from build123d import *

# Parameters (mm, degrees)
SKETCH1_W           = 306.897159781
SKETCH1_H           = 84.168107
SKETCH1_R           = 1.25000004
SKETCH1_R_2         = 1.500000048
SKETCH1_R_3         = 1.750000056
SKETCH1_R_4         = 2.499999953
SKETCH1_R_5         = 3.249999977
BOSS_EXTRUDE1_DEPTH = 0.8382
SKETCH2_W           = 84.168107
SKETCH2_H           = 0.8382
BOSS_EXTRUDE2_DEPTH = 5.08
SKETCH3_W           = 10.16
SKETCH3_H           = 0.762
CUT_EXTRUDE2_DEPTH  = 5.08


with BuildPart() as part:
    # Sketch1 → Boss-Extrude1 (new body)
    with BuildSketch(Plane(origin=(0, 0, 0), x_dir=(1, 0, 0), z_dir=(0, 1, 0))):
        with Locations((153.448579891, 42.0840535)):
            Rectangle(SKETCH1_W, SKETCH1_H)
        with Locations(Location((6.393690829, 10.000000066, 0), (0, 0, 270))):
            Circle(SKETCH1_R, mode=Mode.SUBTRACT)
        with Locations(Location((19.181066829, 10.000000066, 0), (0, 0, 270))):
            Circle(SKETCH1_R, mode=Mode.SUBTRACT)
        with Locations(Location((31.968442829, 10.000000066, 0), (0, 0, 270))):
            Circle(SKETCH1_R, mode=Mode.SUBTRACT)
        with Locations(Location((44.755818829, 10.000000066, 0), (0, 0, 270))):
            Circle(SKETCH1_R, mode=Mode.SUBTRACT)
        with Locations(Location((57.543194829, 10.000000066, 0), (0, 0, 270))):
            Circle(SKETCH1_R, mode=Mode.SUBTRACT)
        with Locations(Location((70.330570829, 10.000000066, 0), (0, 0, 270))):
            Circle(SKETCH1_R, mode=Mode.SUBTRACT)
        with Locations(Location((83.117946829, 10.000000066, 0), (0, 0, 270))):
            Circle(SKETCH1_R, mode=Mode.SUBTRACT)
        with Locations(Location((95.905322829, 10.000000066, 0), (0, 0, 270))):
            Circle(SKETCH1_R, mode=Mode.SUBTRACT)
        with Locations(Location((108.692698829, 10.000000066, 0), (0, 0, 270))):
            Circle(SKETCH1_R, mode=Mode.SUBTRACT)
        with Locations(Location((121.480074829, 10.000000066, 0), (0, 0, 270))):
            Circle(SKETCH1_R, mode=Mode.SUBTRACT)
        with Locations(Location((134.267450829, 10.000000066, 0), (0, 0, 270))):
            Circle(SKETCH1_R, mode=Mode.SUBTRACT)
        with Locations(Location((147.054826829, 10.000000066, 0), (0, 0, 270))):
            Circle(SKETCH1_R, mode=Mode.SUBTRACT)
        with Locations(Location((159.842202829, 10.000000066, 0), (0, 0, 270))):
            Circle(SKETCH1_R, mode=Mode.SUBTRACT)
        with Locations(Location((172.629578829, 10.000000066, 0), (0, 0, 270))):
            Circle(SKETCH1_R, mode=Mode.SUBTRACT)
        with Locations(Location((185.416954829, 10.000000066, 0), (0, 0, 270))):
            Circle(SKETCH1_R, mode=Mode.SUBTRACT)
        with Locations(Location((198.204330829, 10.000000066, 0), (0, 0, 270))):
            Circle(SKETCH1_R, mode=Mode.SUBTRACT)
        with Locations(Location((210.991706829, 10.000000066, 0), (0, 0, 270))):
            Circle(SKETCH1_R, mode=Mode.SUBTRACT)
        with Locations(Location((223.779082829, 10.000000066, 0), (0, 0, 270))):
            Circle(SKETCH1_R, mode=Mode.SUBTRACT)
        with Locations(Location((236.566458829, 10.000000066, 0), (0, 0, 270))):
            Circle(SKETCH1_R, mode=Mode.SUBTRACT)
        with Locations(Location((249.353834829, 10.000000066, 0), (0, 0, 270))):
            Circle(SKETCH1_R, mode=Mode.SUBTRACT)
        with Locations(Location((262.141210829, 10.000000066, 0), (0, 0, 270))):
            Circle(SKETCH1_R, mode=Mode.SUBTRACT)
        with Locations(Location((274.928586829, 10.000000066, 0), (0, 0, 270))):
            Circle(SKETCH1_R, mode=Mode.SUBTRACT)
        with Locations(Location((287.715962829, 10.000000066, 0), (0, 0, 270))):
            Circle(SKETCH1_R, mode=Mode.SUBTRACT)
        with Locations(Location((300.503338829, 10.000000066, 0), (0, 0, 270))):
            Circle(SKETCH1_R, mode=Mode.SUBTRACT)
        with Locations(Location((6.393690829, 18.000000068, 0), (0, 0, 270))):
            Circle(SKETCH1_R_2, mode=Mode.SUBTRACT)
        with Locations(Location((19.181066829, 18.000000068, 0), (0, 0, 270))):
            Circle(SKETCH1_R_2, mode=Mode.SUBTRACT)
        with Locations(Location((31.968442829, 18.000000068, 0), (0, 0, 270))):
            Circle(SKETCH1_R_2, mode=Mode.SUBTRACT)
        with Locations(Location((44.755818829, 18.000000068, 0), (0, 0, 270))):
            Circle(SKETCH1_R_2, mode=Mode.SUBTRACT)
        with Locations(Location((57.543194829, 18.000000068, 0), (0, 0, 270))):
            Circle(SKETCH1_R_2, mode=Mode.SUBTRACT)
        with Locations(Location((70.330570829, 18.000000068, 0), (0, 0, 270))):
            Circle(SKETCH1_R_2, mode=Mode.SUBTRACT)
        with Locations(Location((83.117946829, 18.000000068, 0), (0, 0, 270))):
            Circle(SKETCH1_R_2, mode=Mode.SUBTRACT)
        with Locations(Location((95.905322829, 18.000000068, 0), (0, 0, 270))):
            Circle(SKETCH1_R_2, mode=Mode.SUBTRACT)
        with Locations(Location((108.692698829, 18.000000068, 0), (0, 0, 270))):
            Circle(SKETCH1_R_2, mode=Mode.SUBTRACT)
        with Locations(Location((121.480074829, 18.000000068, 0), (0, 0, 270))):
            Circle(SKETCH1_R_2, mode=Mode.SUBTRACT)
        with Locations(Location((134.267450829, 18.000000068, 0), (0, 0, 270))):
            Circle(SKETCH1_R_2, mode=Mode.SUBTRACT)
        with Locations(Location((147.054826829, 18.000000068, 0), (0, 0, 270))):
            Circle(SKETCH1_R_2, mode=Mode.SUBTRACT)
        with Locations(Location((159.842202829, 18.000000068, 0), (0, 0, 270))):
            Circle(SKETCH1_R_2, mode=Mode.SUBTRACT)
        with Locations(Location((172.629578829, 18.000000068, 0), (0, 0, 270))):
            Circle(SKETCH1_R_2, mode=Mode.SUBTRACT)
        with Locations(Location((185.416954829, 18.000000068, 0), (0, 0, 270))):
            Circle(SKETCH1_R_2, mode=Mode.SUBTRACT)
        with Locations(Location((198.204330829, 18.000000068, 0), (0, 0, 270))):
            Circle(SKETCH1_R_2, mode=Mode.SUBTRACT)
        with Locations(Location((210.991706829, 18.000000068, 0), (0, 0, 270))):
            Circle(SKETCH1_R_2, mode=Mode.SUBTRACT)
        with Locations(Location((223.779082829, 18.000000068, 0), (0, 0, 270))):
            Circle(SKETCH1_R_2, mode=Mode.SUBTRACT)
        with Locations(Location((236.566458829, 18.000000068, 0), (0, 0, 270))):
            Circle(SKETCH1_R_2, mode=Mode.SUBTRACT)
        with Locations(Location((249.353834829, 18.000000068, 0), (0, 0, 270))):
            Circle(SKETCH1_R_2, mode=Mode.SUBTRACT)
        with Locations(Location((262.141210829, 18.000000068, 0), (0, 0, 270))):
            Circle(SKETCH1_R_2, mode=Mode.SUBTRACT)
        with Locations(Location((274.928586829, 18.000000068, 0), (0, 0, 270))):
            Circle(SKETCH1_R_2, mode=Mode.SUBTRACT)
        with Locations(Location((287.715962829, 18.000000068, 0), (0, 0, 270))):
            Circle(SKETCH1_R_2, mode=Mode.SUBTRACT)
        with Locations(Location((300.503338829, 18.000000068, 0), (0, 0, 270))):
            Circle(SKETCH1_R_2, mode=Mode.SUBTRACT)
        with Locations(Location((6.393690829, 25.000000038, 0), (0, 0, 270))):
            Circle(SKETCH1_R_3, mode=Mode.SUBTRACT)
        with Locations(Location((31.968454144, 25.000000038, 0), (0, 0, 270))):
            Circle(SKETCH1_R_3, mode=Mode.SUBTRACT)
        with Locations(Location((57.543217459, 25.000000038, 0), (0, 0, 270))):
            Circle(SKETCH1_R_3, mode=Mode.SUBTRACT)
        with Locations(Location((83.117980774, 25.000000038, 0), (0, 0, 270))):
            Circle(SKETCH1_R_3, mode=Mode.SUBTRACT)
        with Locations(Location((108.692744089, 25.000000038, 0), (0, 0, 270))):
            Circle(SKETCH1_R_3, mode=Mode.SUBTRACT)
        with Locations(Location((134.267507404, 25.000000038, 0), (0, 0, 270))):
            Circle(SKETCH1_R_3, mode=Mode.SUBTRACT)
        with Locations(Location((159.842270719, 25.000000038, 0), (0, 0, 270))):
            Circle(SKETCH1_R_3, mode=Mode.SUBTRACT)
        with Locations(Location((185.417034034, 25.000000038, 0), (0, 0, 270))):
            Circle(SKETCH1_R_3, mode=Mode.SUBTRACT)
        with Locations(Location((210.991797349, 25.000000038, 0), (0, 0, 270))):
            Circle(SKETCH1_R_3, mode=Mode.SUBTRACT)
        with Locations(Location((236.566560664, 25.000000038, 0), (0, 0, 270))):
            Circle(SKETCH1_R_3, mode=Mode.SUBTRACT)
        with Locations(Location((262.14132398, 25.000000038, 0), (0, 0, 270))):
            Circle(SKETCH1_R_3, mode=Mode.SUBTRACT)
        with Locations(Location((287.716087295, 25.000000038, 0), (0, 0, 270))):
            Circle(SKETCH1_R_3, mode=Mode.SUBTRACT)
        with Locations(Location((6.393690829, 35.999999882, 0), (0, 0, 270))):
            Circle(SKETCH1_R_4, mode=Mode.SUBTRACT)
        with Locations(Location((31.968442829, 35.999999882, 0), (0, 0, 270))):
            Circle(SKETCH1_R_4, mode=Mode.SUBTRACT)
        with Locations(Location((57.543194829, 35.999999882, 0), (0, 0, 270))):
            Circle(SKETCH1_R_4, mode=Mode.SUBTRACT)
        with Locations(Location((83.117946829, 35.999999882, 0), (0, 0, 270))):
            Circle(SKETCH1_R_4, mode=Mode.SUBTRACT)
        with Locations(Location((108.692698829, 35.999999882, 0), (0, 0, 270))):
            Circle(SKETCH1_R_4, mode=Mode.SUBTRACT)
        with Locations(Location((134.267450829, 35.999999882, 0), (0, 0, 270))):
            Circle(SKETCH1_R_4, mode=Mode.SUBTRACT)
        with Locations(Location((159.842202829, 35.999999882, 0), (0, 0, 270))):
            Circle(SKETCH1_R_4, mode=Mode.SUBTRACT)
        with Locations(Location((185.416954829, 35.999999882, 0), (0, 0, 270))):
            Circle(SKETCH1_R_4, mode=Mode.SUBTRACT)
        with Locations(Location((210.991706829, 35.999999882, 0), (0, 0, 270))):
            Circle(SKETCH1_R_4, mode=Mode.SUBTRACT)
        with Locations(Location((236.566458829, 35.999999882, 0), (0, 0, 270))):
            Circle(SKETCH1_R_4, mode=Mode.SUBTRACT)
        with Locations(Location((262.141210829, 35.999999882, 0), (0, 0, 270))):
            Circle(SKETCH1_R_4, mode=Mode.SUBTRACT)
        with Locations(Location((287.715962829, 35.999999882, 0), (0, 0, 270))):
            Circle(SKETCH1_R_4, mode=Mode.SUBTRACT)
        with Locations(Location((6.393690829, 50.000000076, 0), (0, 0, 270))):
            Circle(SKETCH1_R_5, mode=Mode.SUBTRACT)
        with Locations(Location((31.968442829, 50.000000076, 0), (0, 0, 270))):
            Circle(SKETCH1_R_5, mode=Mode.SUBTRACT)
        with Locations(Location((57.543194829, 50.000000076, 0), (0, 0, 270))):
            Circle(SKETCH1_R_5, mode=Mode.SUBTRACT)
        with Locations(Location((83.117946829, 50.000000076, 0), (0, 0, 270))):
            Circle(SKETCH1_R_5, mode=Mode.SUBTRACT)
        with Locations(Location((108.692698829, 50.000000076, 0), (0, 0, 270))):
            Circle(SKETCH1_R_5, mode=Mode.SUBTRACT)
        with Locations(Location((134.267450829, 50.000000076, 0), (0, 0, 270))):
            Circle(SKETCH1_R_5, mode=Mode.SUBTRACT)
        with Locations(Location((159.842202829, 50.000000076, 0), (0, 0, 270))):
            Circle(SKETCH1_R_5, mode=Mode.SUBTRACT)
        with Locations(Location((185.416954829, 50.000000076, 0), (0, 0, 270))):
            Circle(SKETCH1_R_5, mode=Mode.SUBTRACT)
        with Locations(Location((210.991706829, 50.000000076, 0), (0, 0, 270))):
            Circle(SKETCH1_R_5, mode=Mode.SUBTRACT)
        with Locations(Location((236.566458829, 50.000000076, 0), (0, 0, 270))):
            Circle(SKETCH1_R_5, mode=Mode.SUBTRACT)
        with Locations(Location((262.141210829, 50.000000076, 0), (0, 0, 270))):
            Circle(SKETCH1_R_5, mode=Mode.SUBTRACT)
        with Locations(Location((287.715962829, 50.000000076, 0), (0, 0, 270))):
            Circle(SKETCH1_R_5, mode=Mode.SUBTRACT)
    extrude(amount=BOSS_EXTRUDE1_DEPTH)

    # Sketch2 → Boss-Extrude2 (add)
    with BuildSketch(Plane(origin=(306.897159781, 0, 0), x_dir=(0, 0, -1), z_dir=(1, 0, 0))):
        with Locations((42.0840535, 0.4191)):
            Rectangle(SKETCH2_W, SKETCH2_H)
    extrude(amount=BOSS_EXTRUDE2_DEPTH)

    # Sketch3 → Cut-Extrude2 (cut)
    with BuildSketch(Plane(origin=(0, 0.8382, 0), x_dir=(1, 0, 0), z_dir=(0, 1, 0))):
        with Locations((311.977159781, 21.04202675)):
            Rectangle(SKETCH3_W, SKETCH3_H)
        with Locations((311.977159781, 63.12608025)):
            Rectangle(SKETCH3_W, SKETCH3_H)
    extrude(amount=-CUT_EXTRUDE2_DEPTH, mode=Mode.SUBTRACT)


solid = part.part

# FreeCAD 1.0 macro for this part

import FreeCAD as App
import Part
import Sketcher

doc = App.newDocument("Part")
body = doc.addObject("PartDesign::Body", "Body")

sketch1 = doc.addObject("Sketcher::SketchObject", "Sketch")
body.addObject(sketch1)
sketch1.AttachmentSupport = (doc.XZ_Plane, [""])
sketch1.MapMode = "FlatFace"
sketch1.addGeometry(Part.LineSegment(App.Vector(0, -84.2, 0), App.Vector(0, 0, 0)), False)
sketch1.addGeometry(Part.LineSegment(App.Vector(0, 0, 0), App.Vector(306.9, 0, 0)), False)
sketch1.addGeometry(Part.LineSegment(App.Vector(306.9, 0, 0), App.Vector(306.9, -84.2, 0)), False)
sketch1.addGeometry(Part.LineSegment(App.Vector(306.9, -84.2, 0), App.Vector(0, -84.2, 0)), False)
sketch1.addGeometry(Part.Circle(App.Vector(6.4, -10, 0), App.Vector(0, 0, 1), 1.3), False)
sketch1.addGeometry(Part.Circle(App.Vector(19.2, -10, 0), App.Vector(0, 0, 1), 1.3), False)
sketch1.addGeometry(Part.Circle(App.Vector(32, -10, 0), App.Vector(0, 0, 1), 1.3), False)
sketch1.addGeometry(Part.Circle(App.Vector(44.8, -10, 0), App.Vector(0, 0, 1), 1.3), False)
sketch1.addGeometry(Part.Circle(App.Vector(57.5, -10, 0), App.Vector(0, 0, 1), 1.3), False)
sketch1.addGeometry(Part.Circle(App.Vector(70.3, -10, 0), App.Vector(0, 0, 1), 1.3), False)
sketch1.addGeometry(Part.Circle(App.Vector(6.4, -18, 0), App.Vector(0, 0, 1), 1.5), False)
sketch1.addGeometry(Part.Circle(App.Vector(19.2, -18, 0), App.Vector(0, 0, 1), 1.5), False)
sketch1.addGeometry(Part.Circle(App.Vector(32, -18, 0), App.Vector(0, 0, 1), 1.5), False)
sketch1.addGeometry(Part.Circle(App.Vector(44.8, -18, 0), App.Vector(0, 0, 1), 1.5), False)
sketch1.addGeometry(Part.Circle(App.Vector(57.5, -18, 0), App.Vector(0, 0, 1), 1.5), False)
sketch1.addGeometry(Part.Circle(App.Vector(70.3, -18, 0), App.Vector(0, 0, 1), 1.5), False)
sketch1.addGeometry(Part.Circle(App.Vector(83.1, -10, 0), App.Vector(0, 0, 1), 1.3), False)
sketch1.addGeometry(Part.Circle(App.Vector(95.9, -10, 0), App.Vector(0, 0, 1), 1.3), False)
sketch1.addGeometry(Part.Circle(App.Vector(108.7, -10, 0), App.Vector(0, 0, 1), 1.3), False)
sketch1.addGeometry(Part.Circle(App.Vector(121.5, -10, 0), App.Vector(0, 0, 1), 1.3), False)
sketch1.addGeometry(Part.Circle(App.Vector(134.3, -10, 0), App.Vector(0, 0, 1), 1.3), False)
sketch1.addGeometry(Part.Circle(App.Vector(147.1, -10, 0), App.Vector(0, 0, 1), 1.3), False)
sketch1.addGeometry(Part.Circle(App.Vector(83.1, -18, 0), App.Vector(0, 0, 1), 1.5), False)
sketch1.addGeometry(Part.Circle(App.Vector(95.9, -18, 0), App.Vector(0, 0, 1), 1.5), False)
sketch1.addGeometry(Part.Circle(App.Vector(108.7, -18, 0), App.Vector(0, 0, 1), 1.5), False)
sketch1.addGeometry(Part.Circle(App.Vector(121.5, -18, 0), App.Vector(0, 0, 1), 1.5), False)
sketch1.addGeometry(Part.Circle(App.Vector(134.3, -18, 0), App.Vector(0, 0, 1), 1.5), False)
sketch1.addGeometry(Part.Circle(App.Vector(147.1, -18, 0), App.Vector(0, 0, 1), 1.5), False)
sketch1.addGeometry(Part.Circle(App.Vector(6.4, -25, 0), App.Vector(0, 0, 1), 1.8), False)
sketch1.addGeometry(Part.Circle(App.Vector(32, -25, 0), App.Vector(0, 0, 1), 1.8), False)
sketch1.addGeometry(Part.Circle(App.Vector(57.5, -25, 0), App.Vector(0, 0, 1), 1.8), False)
sketch1.addGeometry(Part.Circle(App.Vector(83.1, -25, 0), App.Vector(0, 0, 1), 1.8), False)
sketch1.addGeometry(Part.Circle(App.Vector(108.7, -25, 0), App.Vector(0, 0, 1), 1.8), False)
sketch1.addGeometry(Part.Circle(App.Vector(134.3, -25, 0), App.Vector(0, 0, 1), 1.8), False)
sketch1.addGeometry(Part.Circle(App.Vector(159.8, -10, 0), App.Vector(0, 0, 1), 1.3), False)
sketch1.addGeometry(Part.Circle(App.Vector(172.6, -10, 0), App.Vector(0, 0, 1), 1.3), False)
sketch1.addGeometry(Part.Circle(App.Vector(185.4, -10, 0), App.Vector(0, 0, 1), 1.3), False)
sketch1.addGeometry(Part.Circle(App.Vector(198.2, -10, 0), App.Vector(0, 0, 1), 1.3), False)
sketch1.addGeometry(Part.Circle(App.Vector(211, -10, 0), App.Vector(0, 0, 1), 1.3), False)
sketch1.addGeometry(Part.Circle(App.Vector(223.8, -10, 0), App.Vector(0, 0, 1), 1.3), False)
sketch1.addGeometry(Part.Circle(App.Vector(159.8, -18, 0), App.Vector(0, 0, 1), 1.5), False)
sketch1.addGeometry(Part.Circle(App.Vector(172.6, -18, 0), App.Vector(0, 0, 1), 1.5), False)
sketch1.addGeometry(Part.Circle(App.Vector(185.4, -18, 0), App.Vector(0, 0, 1), 1.5), False)
sketch1.addGeometry(Part.Circle(App.Vector(198.2, -18, 0), App.Vector(0, 0, 1), 1.5), False)
sketch1.addGeometry(Part.Circle(App.Vector(211, -18, 0), App.Vector(0, 0, 1), 1.5), False)
sketch1.addGeometry(Part.Circle(App.Vector(223.8, -18, 0), App.Vector(0, 0, 1), 1.5), False)
sketch1.addGeometry(Part.Circle(App.Vector(236.6, -10, 0), App.Vector(0, 0, 1), 1.3), False)
sketch1.addGeometry(Part.Circle(App.Vector(249.4, -10, 0), App.Vector(0, 0, 1), 1.3), False)
sketch1.addGeometry(Part.Circle(App.Vector(262.1, -10, 0), App.Vector(0, 0, 1), 1.3), False)
sketch1.addGeometry(Part.Circle(App.Vector(274.9, -10, 0), App.Vector(0, 0, 1), 1.3), False)
sketch1.addGeometry(Part.Circle(App.Vector(287.7, -10, 0), App.Vector(0, 0, 1), 1.3), False)
sketch1.addGeometry(Part.Circle(App.Vector(300.5, -10, 0), App.Vector(0, 0, 1), 1.3), False)
sketch1.addGeometry(Part.Circle(App.Vector(236.6, -18, 0), App.Vector(0, 0, 1), 1.5), False)
sketch1.addGeometry(Part.Circle(App.Vector(249.4, -18, 0), App.Vector(0, 0, 1), 1.5), False)
sketch1.addGeometry(Part.Circle(App.Vector(262.1, -18, 0), App.Vector(0, 0, 1), 1.5), False)
sketch1.addGeometry(Part.Circle(App.Vector(274.9, -18, 0), App.Vector(0, 0, 1), 1.5), False)
sketch1.addGeometry(Part.Circle(App.Vector(287.7, -18, 0), App.Vector(0, 0, 1), 1.5), False)
sketch1.addGeometry(Part.Circle(App.Vector(300.5, -18, 0), App.Vector(0, 0, 1), 1.5), False)
sketch1.addGeometry(Part.Circle(App.Vector(159.8, -25, 0), App.Vector(0, 0, 1), 1.8), False)
sketch1.addGeometry(Part.Circle(App.Vector(185.4, -25, 0), App.Vector(0, 0, 1), 1.8), False)
sketch1.addGeometry(Part.Circle(App.Vector(211, -25, 0), App.Vector(0, 0, 1), 1.8), False)
sketch1.addGeometry(Part.Circle(App.Vector(236.6, -25, 0), App.Vector(0, 0, 1), 1.8), False)
sketch1.addGeometry(Part.Circle(App.Vector(262.1, -25, 0), App.Vector(0, 0, 1), 1.8), False)
sketch1.addGeometry(Part.Circle(App.Vector(287.7, -25, 0), App.Vector(0, 0, 1), 1.8), False)
sketch1.addGeometry(Part.Circle(App.Vector(6.4, -36, 0), App.Vector(0, 0, 1), 2.5), False)
sketch1.addGeometry(Part.Circle(App.Vector(32, -36, 0), App.Vector(0, 0, 1), 2.5), False)
sketch1.addGeometry(Part.Circle(App.Vector(57.5, -36, 0), App.Vector(0, 0, 1), 2.5), False)
sketch1.addGeometry(Part.Circle(App.Vector(83.1, -36, 0), App.Vector(0, 0, 1), 2.5), False)
sketch1.addGeometry(Part.Circle(App.Vector(108.7, -36, 0), App.Vector(0, 0, 1), 2.5), False)
sketch1.addGeometry(Part.Circle(App.Vector(134.3, -36, 0), App.Vector(0, 0, 1), 2.5), False)
sketch1.addGeometry(Part.Circle(App.Vector(6.4, -50, 0), App.Vector(0, 0, 1), 3.2), False)
sketch1.addGeometry(Part.Circle(App.Vector(32, -50, 0), App.Vector(0, 0, 1), 3.2), False)
sketch1.addGeometry(Part.Circle(App.Vector(57.5, -50, 0), App.Vector(0, 0, 1), 3.2), False)
sketch1.addGeometry(Part.Circle(App.Vector(83.1, -50, 0), App.Vector(0, 0, 1), 3.2), False)
sketch1.addGeometry(Part.Circle(App.Vector(108.7, -50, 0), App.Vector(0, 0, 1), 3.2), False)
sketch1.addGeometry(Part.Circle(App.Vector(134.3, -50, 0), App.Vector(0, 0, 1), 3.2), False)
sketch1.addGeometry(Part.Circle(App.Vector(159.8, -36, 0), App.Vector(0, 0, 1), 2.5), False)
sketch1.addGeometry(Part.Circle(App.Vector(185.4, -36, 0), App.Vector(0, 0, 1), 2.5), False)
sketch1.addGeometry(Part.Circle(App.Vector(211, -36, 0), App.Vector(0, 0, 1), 2.5), False)
sketch1.addGeometry(Part.Circle(App.Vector(236.6, -36, 0), App.Vector(0, 0, 1), 2.5), False)
sketch1.addGeometry(Part.Circle(App.Vector(262.1, -36, 0), App.Vector(0, 0, 1), 2.5), False)
sketch1.addGeometry(Part.Circle(App.Vector(287.7, -36, 0), App.Vector(0, 0, 1), 2.5), False)
sketch1.addGeometry(Part.Circle(App.Vector(159.8, -50, 0), App.Vector(0, 0, 1), 3.2), False)
sketch1.addGeometry(Part.Circle(App.Vector(185.4, -50, 0), App.Vector(0, 0, 1), 3.2), False)
sketch1.addGeometry(Part.Circle(App.Vector(211, -50, 0), App.Vector(0, 0, 1), 3.2), False)
sketch1.addGeometry(Part.Circle(App.Vector(236.6, -50, 0), App.Vector(0, 0, 1), 3.2), False)
sketch1.addGeometry(Part.Circle(App.Vector(262.1, -50, 0), App.Vector(0, 0, 1), 3.2), False)
sketch1.addGeometry(Part.Circle(App.Vector(287.7, -50, 0), App.Vector(0, 0, 1), 3.2), False)
sketch1.addConstraint(Sketcher.Constraint("Coincident", 0, 2, 1, 1))
sketch1.addConstraint(Sketcher.Constraint("Coincident", 1, 2, 2, 1))
sketch1.addConstraint(Sketcher.Constraint("Coincident", 2, 2, 3, 1))
sketch1.addConstraint(Sketcher.Constraint("Coincident", 3, 2, 0, 1))
sketch1.addConstraint(Sketcher.Constraint("Vertical", 0))
sketch1.addConstraint(Sketcher.Constraint("Horizontal", 1))
sketch1.addConstraint(Sketcher.Constraint("Vertical", 2))
sketch1.addConstraint(Sketcher.Constraint("Horizontal", 3))
sketch1.addConstraint(Sketcher.Constraint("Coincident", 0, 2, -1, 1))
sketch1.addConstraint(Sketcher.Constraint("Equal", 4, 5))
sketch1.addConstraint(Sketcher.Constraint("Equal", 5, 6))
sketch1.addConstraint(Sketcher.Constraint("Equal", 6, 7))
sketch1.addConstraint(Sketcher.Constraint("Equal", 7, 8))
sketch1.addConstraint(Sketcher.Constraint("Equal", 8, 9))
sketch1.addConstraint(Sketcher.Constraint("Equal", 10, 11))
sketch1.addConstraint(Sketcher.Constraint("Equal", 11, 12))
sketch1.addConstraint(Sketcher.Constraint("Equal", 12, 13))
sketch1.addConstraint(Sketcher.Constraint("Equal", 13, 14))
sketch1.addConstraint(Sketcher.Constraint("Equal", 14, 15))
sketch1.addConstraint(Sketcher.Constraint("Equal", 9, 16))
sketch1.addConstraint(Sketcher.Constraint("Equal", 16, 17))
sketch1.addConstraint(Sketcher.Constraint("Equal", 17, 18))
sketch1.addConstraint(Sketcher.Constraint("Equal", 18, 19))
sketch1.addConstraint(Sketcher.Constraint("Equal", 19, 20))
sketch1.addConstraint(Sketcher.Constraint("Equal", 20, 21))
sketch1.addConstraint(Sketcher.Constraint("Equal", 15, 22))
sketch1.addConstraint(Sketcher.Constraint("Equal", 22, 23))
sketch1.addConstraint(Sketcher.Constraint("Equal", 23, 24))
sketch1.addConstraint(Sketcher.Constraint("Equal", 24, 25))
sketch1.addConstraint(Sketcher.Constraint("Equal", 25, 26))
sketch1.addConstraint(Sketcher.Constraint("Equal", 26, 27))
sketch1.addConstraint(Sketcher.Constraint("Equal", 28, 29))
sketch1.addConstraint(Sketcher.Constraint("Equal", 29, 30))
sketch1.addConstraint(Sketcher.Constraint("Equal", 30, 31))
sketch1.addConstraint(Sketcher.Constraint("Equal", 31, 32))
sketch1.addConstraint(Sketcher.Constraint("Equal", 32, 33))
sketch1.addConstraint(Sketcher.Constraint("Equal", 21, 34))
sketch1.addConstraint(Sketcher.Constraint("Equal", 34, 35))
sketch1.addConstraint(Sketcher.Constraint("Equal", 35, 36))
sketch1.addConstraint(Sketcher.Constraint("Equal", 36, 37))
sketch1.addConstraint(Sketcher.Constraint("Equal", 37, 38))
sketch1.addConstraint(Sketcher.Constraint("Equal", 38, 39))
sketch1.addConstraint(Sketcher.Constraint("Equal", 27, 40))
sketch1.addConstraint(Sketcher.Constraint("Equal", 40, 41))
sketch1.addConstraint(Sketcher.Constraint("Equal", 41, 42))
sketch1.addConstraint(Sketcher.Constraint("Equal", 42, 43))
sketch1.addConstraint(Sketcher.Constraint("Equal", 43, 44))
sketch1.addConstraint(Sketcher.Constraint("Equal", 44, 45))
sketch1.addConstraint(Sketcher.Constraint("Equal", 39, 46))
sketch1.addConstraint(Sketcher.Constraint("Equal", 46, 47))
sketch1.addConstraint(Sketcher.Constraint("Equal", 47, 48))
sketch1.addConstraint(Sketcher.Constraint("Equal", 48, 49))
sketch1.addConstraint(Sketcher.Constraint("Equal", 49, 50))
sketch1.addConstraint(Sketcher.Constraint("Equal", 50, 51))
sketch1.addConstraint(Sketcher.Constraint("Equal", 45, 52))
sketch1.addConstraint(Sketcher.Constraint("Equal", 52, 53))
sketch1.addConstraint(Sketcher.Constraint("Equal", 53, 54))
sketch1.addConstraint(Sketcher.Constraint("Equal", 54, 55))
sketch1.addConstraint(Sketcher.Constraint("Equal", 55, 56))
sketch1.addConstraint(Sketcher.Constraint("Equal", 56, 57))
sketch1.addConstraint(Sketcher.Constraint("Equal", 33, 58))
sketch1.addConstraint(Sketcher.Constraint("Equal", 58, 59))
sketch1.addConstraint(Sketcher.Constraint("Equal", 59, 60))
sketch1.addConstraint(Sketcher.Constraint("Equal", 60, 61))
sketch1.addConstraint(Sketcher.Constraint("Equal", 61, 62))
sketch1.addConstraint(Sketcher.Constraint("Equal", 62, 63))
sketch1.addConstraint(Sketcher.Constraint("Equal", 64, 65))
sketch1.addConstraint(Sketcher.Constraint("Equal", 65, 66))
sketch1.addConstraint(Sketcher.Constraint("Equal", 66, 67))
sketch1.addConstraint(Sketcher.Constraint("Equal", 67, 68))
sketch1.addConstraint(Sketcher.Constraint("Equal", 68, 69))
sketch1.addConstraint(Sketcher.Constraint("Equal", 70, 71))
sketch1.addConstraint(Sketcher.Constraint("Equal", 71, 72))
sketch1.addConstraint(Sketcher.Constraint("Equal", 72, 73))
sketch1.addConstraint(Sketcher.Constraint("Equal", 73, 74))
sketch1.addConstraint(Sketcher.Constraint("Equal", 74, 75))
sketch1.addConstraint(Sketcher.Constraint("Equal", 69, 76))
sketch1.addConstraint(Sketcher.Constraint("Equal", 76, 77))
sketch1.addConstraint(Sketcher.Constraint("Equal", 77, 78))
sketch1.addConstraint(Sketcher.Constraint("Equal", 78, 79))
sketch1.addConstraint(Sketcher.Constraint("Equal", 79, 80))
sketch1.addConstraint(Sketcher.Constraint("Equal", 80, 81))
sketch1.addConstraint(Sketcher.Constraint("Equal", 75, 82))
sketch1.addConstraint(Sketcher.Constraint("Equal", 82, 83))
sketch1.addConstraint(Sketcher.Constraint("Equal", 83, 84))
sketch1.addConstraint(Sketcher.Constraint("Equal", 84, 85))
sketch1.addConstraint(Sketcher.Constraint("Equal", 85, 86))
sketch1.addConstraint(Sketcher.Constraint("Equal", 86, 87))
sketch1.addConstraint(Sketcher.Constraint("Horizontal", 4, 3, 5, 3))
sketch1.addConstraint(Sketcher.Constraint("Horizontal", 5, 3, 6, 3))
sketch1.addConstraint(Sketcher.Constraint("Horizontal", 6, 3, 7, 3))
sketch1.addConstraint(Sketcher.Constraint("Horizontal", 7, 3, 8, 3))
sketch1.addConstraint(Sketcher.Constraint("Horizontal", 8, 3, 9, 3))
sketch1.addConstraint(Sketcher.Constraint("Horizontal", 10, 3, 11, 3))
sketch1.addConstraint(Sketcher.Constraint("Horizontal", 11, 3, 12, 3))
sketch1.addConstraint(Sketcher.Constraint("Horizontal", 12, 3, 13, 3))
sketch1.addConstraint(Sketcher.Constraint("Horizontal", 13, 3, 14, 3))
sketch1.addConstraint(Sketcher.Constraint("Horizontal", 14, 3, 15, 3))
sketch1.addConstraint(Sketcher.Constraint("Horizontal", 9, 3, 16, 3))
sketch1.addConstraint(Sketcher.Constraint("Horizontal", 16, 3, 17, 3))
sketch1.addConstraint(Sketcher.Constraint("Horizontal", 17, 3, 18, 3))
sketch1.addConstraint(Sketcher.Constraint("Horizontal", 18, 3, 19, 3))
sketch1.addConstraint(Sketcher.Constraint("Horizontal", 19, 3, 20, 3))
sketch1.addConstraint(Sketcher.Constraint("Horizontal", 20, 3, 21, 3))
sketch1.addConstraint(Sketcher.Constraint("Horizontal", 15, 3, 22, 3))
sketch1.addConstraint(Sketcher.Constraint("Horizontal", 22, 3, 23, 3))
sketch1.addConstraint(Sketcher.Constraint("Horizontal", 23, 3, 24, 3))
sketch1.addConstraint(Sketcher.Constraint("Horizontal", 24, 3, 25, 3))
sketch1.addConstraint(Sketcher.Constraint("Horizontal", 25, 3, 26, 3))
sketch1.addConstraint(Sketcher.Constraint("Horizontal", 26, 3, 27, 3))
sketch1.addConstraint(Sketcher.Constraint("Horizontal", 28, 3, 29, 3))
sketch1.addConstraint(Sketcher.Constraint("Horizontal", 29, 3, 30, 3))
sketch1.addConstraint(Sketcher.Constraint("Horizontal", 30, 3, 31, 3))
sketch1.addConstraint(Sketcher.Constraint("Horizontal", 31, 3, 32, 3))
sketch1.addConstraint(Sketcher.Constraint("Horizontal", 32, 3, 33, 3))
sketch1.addConstraint(Sketcher.Constraint("Horizontal", 21, 3, 34, 3))
sketch1.addConstraint(Sketcher.Constraint("Horizontal", 34, 3, 35, 3))
sketch1.addConstraint(Sketcher.Constraint("Horizontal", 35, 3, 36, 3))
sketch1.addConstraint(Sketcher.Constraint("Horizontal", 36, 3, 37, 3))
sketch1.addConstraint(Sketcher.Constraint("Horizontal", 37, 3, 38, 3))
sketch1.addConstraint(Sketcher.Constraint("Horizontal", 38, 3, 39, 3))
sketch1.addConstraint(Sketcher.Constraint("Horizontal", 27, 3, 40, 3))
sketch1.addConstraint(Sketcher.Constraint("Horizontal", 40, 3, 41, 3))
sketch1.addConstraint(Sketcher.Constraint("Horizontal", 41, 3, 42, 3))
sketch1.addConstraint(Sketcher.Constraint("Horizontal", 42, 3, 43, 3))
sketch1.addConstraint(Sketcher.Constraint("Horizontal", 43, 3, 44, 3))
sketch1.addConstraint(Sketcher.Constraint("Horizontal", 44, 3, 45, 3))
sketch1.addConstraint(Sketcher.Constraint("Horizontal", 39, 3, 46, 3))
sketch1.addConstraint(Sketcher.Constraint("Horizontal", 46, 3, 47, 3))
sketch1.addConstraint(Sketcher.Constraint("Horizontal", 47, 3, 48, 3))
sketch1.addConstraint(Sketcher.Constraint("Horizontal", 48, 3, 49, 3))
sketch1.addConstraint(Sketcher.Constraint("Horizontal", 49, 3, 50, 3))
sketch1.addConstraint(Sketcher.Constraint("Horizontal", 50, 3, 51, 3))
sketch1.addConstraint(Sketcher.Constraint("Horizontal", 45, 3, 52, 3))
sketch1.addConstraint(Sketcher.Constraint("Horizontal", 52, 3, 53, 3))
sketch1.addConstraint(Sketcher.Constraint("Horizontal", 53, 3, 54, 3))
sketch1.addConstraint(Sketcher.Constraint("Horizontal", 54, 3, 55, 3))
sketch1.addConstraint(Sketcher.Constraint("Horizontal", 55, 3, 56, 3))
sketch1.addConstraint(Sketcher.Constraint("Horizontal", 56, 3, 57, 3))
sketch1.addConstraint(Sketcher.Constraint("Horizontal", 33, 3, 58, 3))
sketch1.addConstraint(Sketcher.Constraint("Horizontal", 58, 3, 59, 3))
sketch1.addConstraint(Sketcher.Constraint("Horizontal", 59, 3, 60, 3))
sketch1.addConstraint(Sketcher.Constraint("Horizontal", 60, 3, 61, 3))
sketch1.addConstraint(Sketcher.Constraint("Horizontal", 61, 3, 62, 3))
sketch1.addConstraint(Sketcher.Constraint("Horizontal", 62, 3, 63, 3))
sketch1.addConstraint(Sketcher.Constraint("Horizontal", 64, 3, 65, 3))
sketch1.addConstraint(Sketcher.Constraint("Horizontal", 65, 3, 66, 3))
sketch1.addConstraint(Sketcher.Constraint("Horizontal", 66, 3, 67, 3))
sketch1.addConstraint(Sketcher.Constraint("Horizontal", 67, 3, 68, 3))
sketch1.addConstraint(Sketcher.Constraint("Horizontal", 68, 3, 69, 3))
sketch1.addConstraint(Sketcher.Constraint("Horizontal", 70, 3, 71, 3))
sketch1.addConstraint(Sketcher.Constraint("Horizontal", 71, 3, 72, 3))
sketch1.addConstraint(Sketcher.Constraint("Horizontal", 72, 3, 73, 3))
sketch1.addConstraint(Sketcher.Constraint("Horizontal", 73, 3, 74, 3))
sketch1.addConstraint(Sketcher.Constraint("Horizontal", 74, 3, 75, 3))
sketch1.addConstraint(Sketcher.Constraint("Horizontal", 69, 3, 76, 3))
sketch1.addConstraint(Sketcher.Constraint("Horizontal", 76, 3, 77, 3))
sketch1.addConstraint(Sketcher.Constraint("Horizontal", 77, 3, 78, 3))
sketch1.addConstraint(Sketcher.Constraint("Horizontal", 78, 3, 79, 3))
sketch1.addConstraint(Sketcher.Constraint("Horizontal", 79, 3, 80, 3))
sketch1.addConstraint(Sketcher.Constraint("Horizontal", 80, 3, 81, 3))
sketch1.addConstraint(Sketcher.Constraint("Horizontal", 75, 3, 82, 3))
sketch1.addConstraint(Sketcher.Constraint("Horizontal", 82, 3, 83, 3))
sketch1.addConstraint(Sketcher.Constraint("Horizontal", 83, 3, 84, 3))
sketch1.addConstraint(Sketcher.Constraint("Horizontal", 84, 3, 85, 3))
sketch1.addConstraint(Sketcher.Constraint("Horizontal", 85, 3, 86, 3))
sketch1.addConstraint(Sketcher.Constraint("Horizontal", 86, 3, 87, 3))
sketch1.addConstraint(Sketcher.Constraint("Vertical", 4, 3, 10, 3))
sketch1.addConstraint(Sketcher.Constraint("Vertical", 5, 3, 11, 3))
sketch1.addConstraint(Sketcher.Constraint("Vertical", 6, 3, 12, 3))
sketch1.addConstraint(Sketcher.Constraint("Vertical", 7, 3, 13, 3))
sketch1.addConstraint(Sketcher.Constraint("Vertical", 8, 3, 14, 3))
sketch1.addConstraint(Sketcher.Constraint("Vertical", 9, 3, 15, 3))
sketch1.addConstraint(Sketcher.Constraint("Vertical", 16, 3, 22, 3))
sketch1.addConstraint(Sketcher.Constraint("Vertical", 17, 3, 23, 3))
sketch1.addConstraint(Sketcher.Constraint("Vertical", 18, 3, 24, 3))
sketch1.addConstraint(Sketcher.Constraint("Vertical", 19, 3, 25, 3))
sketch1.addConstraint(Sketcher.Constraint("Vertical", 20, 3, 26, 3))
sketch1.addConstraint(Sketcher.Constraint("Vertical", 21, 3, 27, 3))
sketch1.addConstraint(Sketcher.Constraint("Vertical", 10, 3, 28, 3))
sketch1.addConstraint(Sketcher.Constraint("Vertical", 34, 3, 40, 3))
sketch1.addConstraint(Sketcher.Constraint("Vertical", 35, 3, 41, 3))
sketch1.addConstraint(Sketcher.Constraint("Vertical", 36, 3, 42, 3))
sketch1.addConstraint(Sketcher.Constraint("Vertical", 37, 3, 43, 3))
sketch1.addConstraint(Sketcher.Constraint("Vertical", 38, 3, 44, 3))
sketch1.addConstraint(Sketcher.Constraint("Vertical", 39, 3, 45, 3))
sketch1.addConstraint(Sketcher.Constraint("Vertical", 46, 3, 52, 3))
sketch1.addConstraint(Sketcher.Constraint("Vertical", 47, 3, 53, 3))
sketch1.addConstraint(Sketcher.Constraint("Vertical", 48, 3, 54, 3))
sketch1.addConstraint(Sketcher.Constraint("Vertical", 49, 3, 55, 3))
sketch1.addConstraint(Sketcher.Constraint("Vertical", 50, 3, 56, 3))
sketch1.addConstraint(Sketcher.Constraint("Vertical", 51, 3, 57, 3))
sketch1.addConstraint(Sketcher.Constraint("Vertical", 28, 3, 64, 3))
sketch1.addConstraint(Sketcher.Constraint("Vertical", 12, 3, 65, 3))
sketch1.addConstraint(Sketcher.Constraint("Vertical", 14, 3, 66, 3))
sketch1.addConstraint(Sketcher.Constraint("Vertical", 22, 3, 67, 3))
sketch1.addConstraint(Sketcher.Constraint("Vertical", 24, 3, 68, 3))
sketch1.addConstraint(Sketcher.Constraint("Vertical", 26, 3, 69, 3))
sketch1.addConstraint(Sketcher.Constraint("Vertical", 64, 3, 70, 3))
sketch1.addConstraint(Sketcher.Constraint("Vertical", 65, 3, 71, 3))
sketch1.addConstraint(Sketcher.Constraint("Vertical", 66, 3, 72, 3))
sketch1.addConstraint(Sketcher.Constraint("Vertical", 67, 3, 73, 3))
sketch1.addConstraint(Sketcher.Constraint("Vertical", 68, 3, 74, 3))
sketch1.addConstraint(Sketcher.Constraint("Vertical", 69, 3, 75, 3))
sketch1.addConstraint(Sketcher.Constraint("Vertical", 40, 3, 76, 3))
sketch1.addConstraint(Sketcher.Constraint("Vertical", 42, 3, 77, 3))
sketch1.addConstraint(Sketcher.Constraint("Vertical", 44, 3, 78, 3))
sketch1.addConstraint(Sketcher.Constraint("Vertical", 52, 3, 79, 3))
sketch1.addConstraint(Sketcher.Constraint("Vertical", 54, 3, 80, 3))
sketch1.addConstraint(Sketcher.Constraint("Vertical", 56, 3, 81, 3))
sketch1.addConstraint(Sketcher.Constraint("Vertical", 76, 3, 82, 3))
sketch1.addConstraint(Sketcher.Constraint("Vertical", 77, 3, 83, 3))
sketch1.addConstraint(Sketcher.Constraint("Vertical", 78, 3, 84, 3))
sketch1.addConstraint(Sketcher.Constraint("Vertical", 79, 3, 85, 3))
sketch1.addConstraint(Sketcher.Constraint("Vertical", 80, 3, 86, 3))
sketch1.addConstraint(Sketcher.Constraint("Vertical", 81, 3, 87, 3))
sketch1.addConstraint(Sketcher.Constraint("Diameter", 10, 3.0))
sketch1.addConstraint(Sketcher.Constraint("Diameter", 64, 5.0))
sketch1.addConstraint(Sketcher.Constraint("Diameter", 4, 2.5))
sketch1.addConstraint(Sketcher.Constraint("Diameter", 28, 3.5))
sketch1.addConstraint(Sketcher.Constraint("Diameter", 70, 6.5))
sketch1.addConstraint(Sketcher.Constraint("DistanceY", 4, 3, -1, 1, 10.0))
sketch1.addConstraint(Sketcher.Constraint("DistanceY", 10, 3, -1, 1, 18.0))
sketch1.addConstraint(Sketcher.Constraint("DistanceY", 28, 3, -1, 1, 25.0))
sketch1.addConstraint(Sketcher.Constraint("DistanceY", 64, 3, -1, 1, 36.0))
sketch1.addConstraint(Sketcher.Constraint("DistanceY", 70, 3, -1, 1, 50.0))
sketch1.addConstraint(Sketcher.Constraint("DistanceX", 1, 1, 1, 2, 306.89716))
sketch1.addConstraint(Sketcher.Constraint("DistanceX", -1, 1, 18, 3, 108.692699))
sketch1.addConstraint(Sketcher.Constraint("DistanceY", 0, 1, 0, 2, 84.168107))
sketch1.addConstraint(Sketcher.Constraint("DistanceX", -1, 1, 4, 3, 6.393691))
sketch1.addConstraint(Sketcher.Constraint("DistanceX", -1, 1, 7, 3, 44.755819))
sketch1.addConstraint(Sketcher.Constraint("DistanceX", -1, 1, 9, 3, 70.330571))
sketch1.addConstraint(Sketcher.Constraint("DistanceX", -1, 1, 20, 3, 134.267451))
sketch1.addConstraint(Sketcher.Constraint("DistanceX", -1, 1, 31, 3, 83.117981))
sketch1.addConstraint(Sketcher.Constraint("DistanceX", -1, 1, 35, 3, 172.629579))
sketch1.addConstraint(Sketcher.Constraint("DistanceX", -1, 1, 37, 3, 198.204331))
sketch1.addConstraint(Sketcher.Constraint("DistanceX", -1, 1, 46, 3, 236.566459))
sketch1.addConstraint(Sketcher.Constraint("DistanceX", -1, 1, 48, 3, 262.141211))
sketch1.addConstraint(Sketcher.Constraint("DistanceX", -1, 1, 51, 3, 300.503339))
sketch1.addConstraint(Sketcher.Constraint("DistanceX", -1, 1, 58, 3, 159.842271))
sketch1.addConstraint(Sketcher.Constraint("DistanceX", -1, 1, 61, 3, 236.566561))
sketch1.addConstraint(Sketcher.Constraint("DistanceX", -1, 1, 5, 3, 19.181067))
sketch1.addConstraint(Sketcher.Constraint("DistanceX", -1, 1, 6, 3, 31.968443))
sketch1.addConstraint(Sketcher.Constraint("DistanceX", -1, 1, 8, 3, 57.543195))
sketch1.addConstraint(Sketcher.Constraint("DistanceX", -1, 1, 16, 3, 83.117947))
sketch1.addConstraint(Sketcher.Constraint("DistanceX", -1, 1, 17, 3, 95.905323))
sketch1.addConstraint(Sketcher.Constraint("DistanceX", -1, 1, 19, 3, 121.480075))
sketch1.addConstraint(Sketcher.Constraint("DistanceX", -1, 1, 21, 3, 147.054827))
sketch1.addConstraint(Sketcher.Constraint("DistanceX", -1, 1, 29, 3, 31.968454))
sketch1.addConstraint(Sketcher.Constraint("DistanceX", -1, 1, 30, 3, 57.543217))
sketch1.addConstraint(Sketcher.Constraint("DistanceX", -1, 1, 32, 3, 108.692744))
sketch1.addConstraint(Sketcher.Constraint("DistanceX", -1, 1, 33, 3, 134.267507))
sketch1.addConstraint(Sketcher.Constraint("DistanceX", -1, 1, 34, 3, 159.842203))
sketch1.addConstraint(Sketcher.Constraint("DistanceX", -1, 1, 36, 3, 185.416955))
sketch1.addConstraint(Sketcher.Constraint("DistanceX", -1, 1, 38, 3, 210.991707))
sketch1.addConstraint(Sketcher.Constraint("DistanceX", -1, 1, 39, 3, 223.779083))
sketch1.addConstraint(Sketcher.Constraint("DistanceX", -1, 1, 47, 3, 249.353835))
sketch1.addConstraint(Sketcher.Constraint("DistanceX", -1, 1, 49, 3, 274.928587))
sketch1.addConstraint(Sketcher.Constraint("DistanceX", -1, 1, 50, 3, 287.715963))
sketch1.addConstraint(Sketcher.Constraint("DistanceX", -1, 1, 59, 3, 185.417034))
sketch1.addConstraint(Sketcher.Constraint("DistanceX", -1, 1, 60, 3, 210.991797))
sketch1.addConstraint(Sketcher.Constraint("DistanceX", -1, 1, 62, 3, 262.141324))
sketch1.addConstraint(Sketcher.Constraint("DistanceX", -1, 1, 63, 3, 287.716087))
pad1 = doc.addObject("PartDesign::Pad", "Pad")
body.addObject(pad1)
pad1.Profile = sketch1
pad1.Length = 0.8382
pad1.Reversed = True

sketch2 = doc.addObject("Sketcher::SketchObject", "Sketch001")
body.addObject(sketch2)
sketch2.AttachmentSupport = (doc.YZ_Plane, [""])
sketch2.MapMode = "FlatFace"
sketch2.AttachmentOffset = App.Placement(App.Vector(0, 0, 306.89716), App.Rotation())
sketch2.addGeometry(Part.LineSegment(App.Vector(0.8, 0, 0), App.Vector(0, 0, 0)), False)
sketch2.addGeometry(Part.LineSegment(App.Vector(0, 0, 0), App.Vector(0, -84.2, 0)), False)
sketch2.addGeometry(Part.LineSegment(App.Vector(0, -84.2, 0), App.Vector(0.8, -84.2, 0)), False)
sketch2.addGeometry(Part.LineSegment(App.Vector(0.8, -84.2, 0), App.Vector(0.8, 0, 0)), False)
sketch2.addConstraint(Sketcher.Constraint("Coincident", 0, 2, 1, 1))
sketch2.addConstraint(Sketcher.Constraint("Coincident", 1, 2, 2, 1))
sketch2.addConstraint(Sketcher.Constraint("Coincident", 2, 2, 3, 1))
sketch2.addConstraint(Sketcher.Constraint("Coincident", 3, 2, 0, 1))
sketch2.addConstraint(Sketcher.Constraint("Horizontal", 0))
sketch2.addConstraint(Sketcher.Constraint("Vertical", 1))
sketch2.addConstraint(Sketcher.Constraint("Horizontal", 2))
sketch2.addConstraint(Sketcher.Constraint("Vertical", 3))
sketch2.addConstraint(Sketcher.Constraint("Coincident", 0, 2, -1, 1))
sketch2.addConstraint(Sketcher.Constraint("DistanceX", 0, 2, 0, 1, 0.8382))
sketch2.addConstraint(Sketcher.Constraint("DistanceY", 1, 2, 1, 1, 84.168107))
pad2 = doc.addObject("PartDesign::Pad", "Pad001")
body.addObject(pad2)
pad2.Profile = sketch2
pad2.Length = 5.08

sketch3 = doc.addObject("Sketcher::SketchObject", "Sketch002")
body.addObject(sketch3)
sketch3.AttachmentSupport = (doc.XZ_Plane, [""])
sketch3.MapMode = "FlatFace"
sketch3.AttachmentOffset = App.Placement(App.Vector(0, 0, -0.8382), App.Rotation())
sketch3.addGeometry(Part.LineSegment(App.Vector(306.9, -21.4, 0), App.Vector(306.9, -20.7, 0)), False)
sketch3.addGeometry(Part.LineSegment(App.Vector(306.9, -20.7, 0), App.Vector(317.1, -20.7, 0)), False)
sketch3.addGeometry(Part.LineSegment(App.Vector(317.1, -20.7, 0), App.Vector(317.1, -21.4, 0)), False)
sketch3.addGeometry(Part.LineSegment(App.Vector(317.1, -21.4, 0), App.Vector(306.9, -21.4, 0)), False)
sketch3.addGeometry(Part.LineSegment(App.Vector(306.9, -63.5, 0), App.Vector(306.9, -62.7, 0)), False)
sketch3.addGeometry(Part.LineSegment(App.Vector(306.9, -62.7, 0), App.Vector(317.1, -62.7, 0)), False)
sketch3.addGeometry(Part.LineSegment(App.Vector(317.1, -62.7, 0), App.Vector(317.1, -63.5, 0)), False)
sketch3.addGeometry(Part.LineSegment(App.Vector(317.1, -63.5, 0), App.Vector(306.9, -63.5, 0)), False)
sketch3.addConstraint(Sketcher.Constraint("Coincident", 0, 2, 1, 1))
sketch3.addConstraint(Sketcher.Constraint("Coincident", 1, 2, 2, 1))
sketch3.addConstraint(Sketcher.Constraint("Coincident", 2, 2, 3, 1))
sketch3.addConstraint(Sketcher.Constraint("Coincident", 3, 2, 0, 1))
sketch3.addConstraint(Sketcher.Constraint("Coincident", 4, 2, 5, 1))
sketch3.addConstraint(Sketcher.Constraint("Coincident", 5, 2, 6, 1))
sketch3.addConstraint(Sketcher.Constraint("Coincident", 6, 2, 7, 1))
sketch3.addConstraint(Sketcher.Constraint("Coincident", 7, 2, 4, 1))
sketch3.addConstraint(Sketcher.Constraint("Vertical", 0))
sketch3.addConstraint(Sketcher.Constraint("Horizontal", 1))
sketch3.addConstraint(Sketcher.Constraint("Vertical", 2))
sketch3.addConstraint(Sketcher.Constraint("Horizontal", 3))
sketch3.addConstraint(Sketcher.Constraint("Vertical", 4))
sketch3.addConstraint(Sketcher.Constraint("Horizontal", 5))
sketch3.addConstraint(Sketcher.Constraint("Vertical", 6))
sketch3.addConstraint(Sketcher.Constraint("Horizontal", 7))
sketch3.addConstraint(Sketcher.Constraint("Vertical", 3, 2, 4, 2))
sketch3.addConstraint(Sketcher.Constraint("Vertical", 2, 2, 5, 2))
sketch3.addConstraint(Sketcher.Constraint("Equal", 2, 4))
sketch3.addConstraint(Sketcher.Constraint("DistanceX", 1, 1, 1, 2, 10.16))
sketch3.addConstraint(Sketcher.Constraint("DistanceY", 0, 1, 0, 2, 0.762))
sketch3.addConstraint(Sketcher.Constraint("DistanceX", -1, 1, 0, 2, 306.89716))
sketch3.addConstraint(Sketcher.Constraint("DistanceY", 4, 2, -1, 1, 62.74508))
sketch3.addConstraint(Sketcher.Constraint("DistanceY", 0, 2, -1, 1, 20.661027))
pocket1 = doc.addObject("PartDesign::Pocket", "Pocket")
body.addObject(pocket1)
pocket1.Profile = sketch3
pocket1.Length = 5.08
pocket1.Reversed = True

doc.recompute()
